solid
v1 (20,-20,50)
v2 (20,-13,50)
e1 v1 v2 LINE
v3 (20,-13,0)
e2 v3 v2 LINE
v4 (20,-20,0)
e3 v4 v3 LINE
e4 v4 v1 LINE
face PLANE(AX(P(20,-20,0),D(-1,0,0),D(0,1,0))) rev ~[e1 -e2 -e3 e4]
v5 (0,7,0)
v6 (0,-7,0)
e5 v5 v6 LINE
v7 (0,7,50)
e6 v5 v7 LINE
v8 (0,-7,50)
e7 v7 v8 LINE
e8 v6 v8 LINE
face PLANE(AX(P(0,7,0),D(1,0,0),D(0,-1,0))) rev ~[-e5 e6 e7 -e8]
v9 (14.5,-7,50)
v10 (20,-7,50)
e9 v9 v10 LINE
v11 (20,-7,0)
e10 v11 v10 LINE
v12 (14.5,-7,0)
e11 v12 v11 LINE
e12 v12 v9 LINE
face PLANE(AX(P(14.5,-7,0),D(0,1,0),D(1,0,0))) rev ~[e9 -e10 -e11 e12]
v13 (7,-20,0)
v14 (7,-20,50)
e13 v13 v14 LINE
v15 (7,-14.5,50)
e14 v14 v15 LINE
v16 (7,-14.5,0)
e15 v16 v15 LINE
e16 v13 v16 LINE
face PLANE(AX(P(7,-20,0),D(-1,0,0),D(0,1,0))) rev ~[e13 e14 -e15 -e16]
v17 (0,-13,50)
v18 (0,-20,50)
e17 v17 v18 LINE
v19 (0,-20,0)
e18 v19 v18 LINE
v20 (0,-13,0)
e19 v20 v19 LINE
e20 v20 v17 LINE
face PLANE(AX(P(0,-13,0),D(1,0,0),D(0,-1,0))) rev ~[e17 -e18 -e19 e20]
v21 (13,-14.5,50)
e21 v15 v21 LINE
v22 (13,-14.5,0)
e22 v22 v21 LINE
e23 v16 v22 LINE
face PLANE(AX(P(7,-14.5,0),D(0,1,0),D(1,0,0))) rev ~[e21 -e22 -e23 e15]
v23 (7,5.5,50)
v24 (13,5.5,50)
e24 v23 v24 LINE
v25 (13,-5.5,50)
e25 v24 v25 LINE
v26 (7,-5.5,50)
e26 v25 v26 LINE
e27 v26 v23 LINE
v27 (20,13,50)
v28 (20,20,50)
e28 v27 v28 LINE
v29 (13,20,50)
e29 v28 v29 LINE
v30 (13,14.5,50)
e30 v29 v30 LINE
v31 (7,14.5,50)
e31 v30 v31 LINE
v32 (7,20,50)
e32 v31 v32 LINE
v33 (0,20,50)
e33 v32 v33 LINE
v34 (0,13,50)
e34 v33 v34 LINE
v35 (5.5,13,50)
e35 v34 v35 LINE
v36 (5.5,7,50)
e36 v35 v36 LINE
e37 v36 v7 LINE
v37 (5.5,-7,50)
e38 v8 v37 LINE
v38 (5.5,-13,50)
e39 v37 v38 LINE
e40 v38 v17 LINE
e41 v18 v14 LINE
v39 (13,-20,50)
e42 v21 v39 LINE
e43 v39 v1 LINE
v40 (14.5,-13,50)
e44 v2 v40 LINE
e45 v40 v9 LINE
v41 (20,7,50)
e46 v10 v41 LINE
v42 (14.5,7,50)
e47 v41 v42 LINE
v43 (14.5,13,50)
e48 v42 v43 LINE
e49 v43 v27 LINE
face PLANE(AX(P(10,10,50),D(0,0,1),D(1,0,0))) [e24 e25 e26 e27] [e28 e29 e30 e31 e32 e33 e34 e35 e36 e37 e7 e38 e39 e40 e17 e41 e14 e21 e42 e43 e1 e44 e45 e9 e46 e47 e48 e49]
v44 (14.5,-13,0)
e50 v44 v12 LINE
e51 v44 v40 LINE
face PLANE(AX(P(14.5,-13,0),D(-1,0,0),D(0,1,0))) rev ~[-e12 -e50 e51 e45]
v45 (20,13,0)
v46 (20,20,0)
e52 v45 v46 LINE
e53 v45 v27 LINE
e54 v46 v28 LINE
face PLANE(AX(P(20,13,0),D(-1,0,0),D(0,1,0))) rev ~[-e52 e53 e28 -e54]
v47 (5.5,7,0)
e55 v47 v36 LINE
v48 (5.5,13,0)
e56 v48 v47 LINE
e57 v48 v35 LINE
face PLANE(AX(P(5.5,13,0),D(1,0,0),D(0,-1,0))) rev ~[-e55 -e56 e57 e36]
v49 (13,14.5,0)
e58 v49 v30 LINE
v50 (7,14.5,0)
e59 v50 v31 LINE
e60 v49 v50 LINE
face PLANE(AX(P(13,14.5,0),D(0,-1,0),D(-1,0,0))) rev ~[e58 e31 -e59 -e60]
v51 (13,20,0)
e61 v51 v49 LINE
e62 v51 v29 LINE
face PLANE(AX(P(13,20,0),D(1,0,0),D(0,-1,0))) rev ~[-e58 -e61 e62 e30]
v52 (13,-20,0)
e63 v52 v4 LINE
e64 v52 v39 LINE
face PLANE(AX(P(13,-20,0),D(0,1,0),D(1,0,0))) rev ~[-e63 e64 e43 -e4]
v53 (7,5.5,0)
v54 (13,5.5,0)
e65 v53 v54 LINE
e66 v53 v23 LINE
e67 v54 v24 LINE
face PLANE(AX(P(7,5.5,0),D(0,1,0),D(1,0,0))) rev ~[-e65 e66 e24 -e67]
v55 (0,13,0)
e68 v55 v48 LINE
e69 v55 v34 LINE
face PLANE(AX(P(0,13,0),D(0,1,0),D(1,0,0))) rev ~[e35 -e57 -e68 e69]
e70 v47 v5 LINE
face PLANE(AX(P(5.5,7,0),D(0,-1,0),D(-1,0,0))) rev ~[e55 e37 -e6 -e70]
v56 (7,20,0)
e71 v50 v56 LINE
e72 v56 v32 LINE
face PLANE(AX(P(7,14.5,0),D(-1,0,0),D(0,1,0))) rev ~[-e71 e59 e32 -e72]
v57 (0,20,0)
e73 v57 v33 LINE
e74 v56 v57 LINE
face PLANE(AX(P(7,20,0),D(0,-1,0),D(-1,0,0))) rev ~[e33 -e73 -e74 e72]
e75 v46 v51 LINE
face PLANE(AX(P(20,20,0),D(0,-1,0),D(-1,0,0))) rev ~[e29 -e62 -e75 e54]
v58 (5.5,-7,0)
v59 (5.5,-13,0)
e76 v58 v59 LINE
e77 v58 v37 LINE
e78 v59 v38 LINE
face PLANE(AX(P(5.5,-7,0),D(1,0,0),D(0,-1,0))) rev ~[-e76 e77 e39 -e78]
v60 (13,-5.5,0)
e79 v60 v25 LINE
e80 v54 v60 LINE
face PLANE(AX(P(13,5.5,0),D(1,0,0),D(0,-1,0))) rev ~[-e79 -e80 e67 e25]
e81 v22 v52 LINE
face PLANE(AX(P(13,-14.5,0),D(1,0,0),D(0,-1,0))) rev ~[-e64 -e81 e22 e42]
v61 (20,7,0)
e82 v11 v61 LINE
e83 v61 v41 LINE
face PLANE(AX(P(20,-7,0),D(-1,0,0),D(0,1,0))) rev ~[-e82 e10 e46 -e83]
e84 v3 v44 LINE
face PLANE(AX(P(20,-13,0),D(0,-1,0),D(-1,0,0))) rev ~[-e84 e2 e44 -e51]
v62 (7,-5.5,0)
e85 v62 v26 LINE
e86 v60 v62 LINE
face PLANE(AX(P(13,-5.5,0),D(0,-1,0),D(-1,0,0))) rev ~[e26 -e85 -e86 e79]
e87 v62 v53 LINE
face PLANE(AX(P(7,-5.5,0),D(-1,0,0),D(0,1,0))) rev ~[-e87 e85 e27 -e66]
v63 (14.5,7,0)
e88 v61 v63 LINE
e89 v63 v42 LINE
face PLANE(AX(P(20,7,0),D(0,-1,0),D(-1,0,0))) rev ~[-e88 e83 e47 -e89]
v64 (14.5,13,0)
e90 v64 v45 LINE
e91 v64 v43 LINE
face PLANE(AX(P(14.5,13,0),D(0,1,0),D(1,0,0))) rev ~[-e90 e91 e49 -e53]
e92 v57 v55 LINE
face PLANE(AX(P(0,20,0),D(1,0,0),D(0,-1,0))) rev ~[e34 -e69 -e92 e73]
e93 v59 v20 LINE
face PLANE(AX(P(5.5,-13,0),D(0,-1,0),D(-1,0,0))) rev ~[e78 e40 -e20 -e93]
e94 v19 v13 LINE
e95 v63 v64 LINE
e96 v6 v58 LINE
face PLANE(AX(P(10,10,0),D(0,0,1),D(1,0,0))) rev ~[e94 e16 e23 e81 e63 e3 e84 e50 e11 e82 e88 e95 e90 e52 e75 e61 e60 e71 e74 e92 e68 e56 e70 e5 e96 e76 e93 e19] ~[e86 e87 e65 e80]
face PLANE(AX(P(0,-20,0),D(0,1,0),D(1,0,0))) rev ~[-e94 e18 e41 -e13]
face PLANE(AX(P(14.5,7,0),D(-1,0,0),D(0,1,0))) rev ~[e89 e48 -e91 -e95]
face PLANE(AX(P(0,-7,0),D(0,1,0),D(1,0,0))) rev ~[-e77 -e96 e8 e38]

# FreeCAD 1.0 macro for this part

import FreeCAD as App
import Part
import Sketcher
from FreeCAD import Vector


def add_polygon(sketch, points):
    """Adds a closed chain of lines whose ends are joined by coincident constraints."""
    first, n = sketch.GeometryCount, len(points)
    for a, b in zip(points, points[1:] + points[:1]):
        sketch.addGeometry(Part.LineSegment(App.Vector(*a, 0), App.Vector(*b, 0)), False)
    for i in range(n):
        sketch.addConstraint(Sketcher.Constraint("Coincident", first + i, 2, first + (i + 1) % n, 1))

doc = App.newDocument("Part")
body = doc.addObject("PartDesign::Body", "Body")

sketch1 = body.newObject("Sketcher::SketchObject", "Sketch")
sketch1.AttachmentSupport = (doc.getObject("XY_Plane"), [""])
sketch1.MapMode = "FlatFace"
add_polygon(sketch1, [(0, 7), (0, -7), (6, -7), (6, -13), (0, -13), (0, -20), (7, -20), (7, -14), (13, -14), (13, -20), (20, -20), (20, -13), (14, -13), (14, -7), (20, -7), (20, 7), (14, 7), (14, 13), (20, 13), (20, 20), (13, 20), (13, 14), (7, 14), (7, 20), (0, 20), (0, 13), (6, 13), (6, 7)])
add_polygon(sketch1, [(7, 6), (13, 6), (13, -6), (7, -6)])
sketch1.addConstraint([
    Sketcher.Constraint("Vertical", 0),
    Sketcher.Constraint("Horizontal", 1),
    Sketcher.Constraint("Vertical", 2),
    Sketcher.Constraint("Horizontal", 3),
    Sketcher.Constraint("Vertical", 4),
    Sketcher.Constraint("Horizontal", 5),
    Sketcher.Constraint("Vertical", 6),
    Sketcher.Constraint("Horizontal", 7),
    Sketcher.Constraint("Vertical", 8),
    Sketcher.Constraint("Horizontal", 9),
    Sketcher.Constraint("Vertical", 10),
    Sketcher.Constraint("Horizontal", 11),
    Sketcher.Constraint("Vertical", 12),
    Sketcher.Constraint("Horizontal", 13),
    Sketcher.Constraint("Vertical", 14),
    Sketcher.Constraint("Horizontal", 15),
    Sketcher.Constraint("Vertical", 16),
    Sketcher.Constraint("Horizontal", 17),
    Sketcher.Constraint("Vertical", 18),
    Sketcher.Constraint("Horizontal", 19),
    Sketcher.Constraint("Vertical", 20),
    Sketcher.Constraint("Horizontal", 21),
    Sketcher.Constraint("Vertical", 22),
    Sketcher.Constraint("Horizontal", 23),
    Sketcher.Constraint("Vertical", 24),
    Sketcher.Constraint("Horizontal", 25),
    Sketcher.Constraint("Vertical", 26),
    Sketcher.Constraint("Horizontal", 27),
    Sketcher.Constraint("Horizontal", 28),
    Sketcher.Constraint("Vertical", 29),
    Sketcher.Constraint("Horizontal", 30),
    Sketcher.Constraint("Vertical", 31),
    Sketcher.Constraint("Symmetric", 4, 2, 23, 2, -1, 1),
    Sketcher.Constraint("Symmetric", 0, 2, 27, 2, -1, 1),
    Sketcher.Constraint("Symmetric", 12, 2, 15, 2, -1),
    Sketcher.Constraint("Symmetric", 10, 2, 17, 2, -1),
    Sketcher.Constraint("Symmetric", 8, 2, 19, 2, -1),
    Sketcher.Constraint("Symmetric", 6, 2, 21, 2, -1),
    Sketcher.Constraint("Symmetric", 3, 2, 24, 2, -1),
    Sketcher.Constraint("Horizontal", 5, 2, 8, 2),
    Sketcher.Constraint("Horizontal", 3, 2, 10, 2),
    Sketcher.Constraint("Horizontal", 1, 2, 12, 2),
    Sketcher.Constraint("Vertical", 10, 2, 13, 2),
    Sketcher.Constraint("Vertical", 2, 2, 25, 2),
    Sketcher.Constraint("Vertical", 20, 2, 28, 2),
    Sketcher.Constraint("Vertical", 22, 2, 30, 2),
    Sketcher.Constraint("Equal", 5, 9),
    Sketcher.Constraint("Equal", 3, 11),
    Sketcher.Constraint("Equal", 30, 2),
    Sketcher.Constraint("Equal", 23, 4),
    Sketcher.Constraint("Equal", 27, 6),
    Sketcher.Constraint("DistanceX", 5, 1, 5, 2, 7.0),
    Sketcher.Constraint("DistanceX", 7, 1, 7, 2, 6.0),
    Sketcher.Constraint("DistanceY", 0, 2, 0, 1, 14.0),
    Sketcher.Constraint("DistanceY", 29, 2, 29, 1, 11.0),
    Sketcher.Constraint("DistanceX", 1, 1, 1, 2, 5.5),
    Sketcher.Constraint("DistanceY", 28, 2, 20, 2, 9.0),
])
pad1 = body.newObject("PartDesign::Pad", "Pad")
pad1.Profile = sketch1
pad1.Length = 50

doc.recompute()
